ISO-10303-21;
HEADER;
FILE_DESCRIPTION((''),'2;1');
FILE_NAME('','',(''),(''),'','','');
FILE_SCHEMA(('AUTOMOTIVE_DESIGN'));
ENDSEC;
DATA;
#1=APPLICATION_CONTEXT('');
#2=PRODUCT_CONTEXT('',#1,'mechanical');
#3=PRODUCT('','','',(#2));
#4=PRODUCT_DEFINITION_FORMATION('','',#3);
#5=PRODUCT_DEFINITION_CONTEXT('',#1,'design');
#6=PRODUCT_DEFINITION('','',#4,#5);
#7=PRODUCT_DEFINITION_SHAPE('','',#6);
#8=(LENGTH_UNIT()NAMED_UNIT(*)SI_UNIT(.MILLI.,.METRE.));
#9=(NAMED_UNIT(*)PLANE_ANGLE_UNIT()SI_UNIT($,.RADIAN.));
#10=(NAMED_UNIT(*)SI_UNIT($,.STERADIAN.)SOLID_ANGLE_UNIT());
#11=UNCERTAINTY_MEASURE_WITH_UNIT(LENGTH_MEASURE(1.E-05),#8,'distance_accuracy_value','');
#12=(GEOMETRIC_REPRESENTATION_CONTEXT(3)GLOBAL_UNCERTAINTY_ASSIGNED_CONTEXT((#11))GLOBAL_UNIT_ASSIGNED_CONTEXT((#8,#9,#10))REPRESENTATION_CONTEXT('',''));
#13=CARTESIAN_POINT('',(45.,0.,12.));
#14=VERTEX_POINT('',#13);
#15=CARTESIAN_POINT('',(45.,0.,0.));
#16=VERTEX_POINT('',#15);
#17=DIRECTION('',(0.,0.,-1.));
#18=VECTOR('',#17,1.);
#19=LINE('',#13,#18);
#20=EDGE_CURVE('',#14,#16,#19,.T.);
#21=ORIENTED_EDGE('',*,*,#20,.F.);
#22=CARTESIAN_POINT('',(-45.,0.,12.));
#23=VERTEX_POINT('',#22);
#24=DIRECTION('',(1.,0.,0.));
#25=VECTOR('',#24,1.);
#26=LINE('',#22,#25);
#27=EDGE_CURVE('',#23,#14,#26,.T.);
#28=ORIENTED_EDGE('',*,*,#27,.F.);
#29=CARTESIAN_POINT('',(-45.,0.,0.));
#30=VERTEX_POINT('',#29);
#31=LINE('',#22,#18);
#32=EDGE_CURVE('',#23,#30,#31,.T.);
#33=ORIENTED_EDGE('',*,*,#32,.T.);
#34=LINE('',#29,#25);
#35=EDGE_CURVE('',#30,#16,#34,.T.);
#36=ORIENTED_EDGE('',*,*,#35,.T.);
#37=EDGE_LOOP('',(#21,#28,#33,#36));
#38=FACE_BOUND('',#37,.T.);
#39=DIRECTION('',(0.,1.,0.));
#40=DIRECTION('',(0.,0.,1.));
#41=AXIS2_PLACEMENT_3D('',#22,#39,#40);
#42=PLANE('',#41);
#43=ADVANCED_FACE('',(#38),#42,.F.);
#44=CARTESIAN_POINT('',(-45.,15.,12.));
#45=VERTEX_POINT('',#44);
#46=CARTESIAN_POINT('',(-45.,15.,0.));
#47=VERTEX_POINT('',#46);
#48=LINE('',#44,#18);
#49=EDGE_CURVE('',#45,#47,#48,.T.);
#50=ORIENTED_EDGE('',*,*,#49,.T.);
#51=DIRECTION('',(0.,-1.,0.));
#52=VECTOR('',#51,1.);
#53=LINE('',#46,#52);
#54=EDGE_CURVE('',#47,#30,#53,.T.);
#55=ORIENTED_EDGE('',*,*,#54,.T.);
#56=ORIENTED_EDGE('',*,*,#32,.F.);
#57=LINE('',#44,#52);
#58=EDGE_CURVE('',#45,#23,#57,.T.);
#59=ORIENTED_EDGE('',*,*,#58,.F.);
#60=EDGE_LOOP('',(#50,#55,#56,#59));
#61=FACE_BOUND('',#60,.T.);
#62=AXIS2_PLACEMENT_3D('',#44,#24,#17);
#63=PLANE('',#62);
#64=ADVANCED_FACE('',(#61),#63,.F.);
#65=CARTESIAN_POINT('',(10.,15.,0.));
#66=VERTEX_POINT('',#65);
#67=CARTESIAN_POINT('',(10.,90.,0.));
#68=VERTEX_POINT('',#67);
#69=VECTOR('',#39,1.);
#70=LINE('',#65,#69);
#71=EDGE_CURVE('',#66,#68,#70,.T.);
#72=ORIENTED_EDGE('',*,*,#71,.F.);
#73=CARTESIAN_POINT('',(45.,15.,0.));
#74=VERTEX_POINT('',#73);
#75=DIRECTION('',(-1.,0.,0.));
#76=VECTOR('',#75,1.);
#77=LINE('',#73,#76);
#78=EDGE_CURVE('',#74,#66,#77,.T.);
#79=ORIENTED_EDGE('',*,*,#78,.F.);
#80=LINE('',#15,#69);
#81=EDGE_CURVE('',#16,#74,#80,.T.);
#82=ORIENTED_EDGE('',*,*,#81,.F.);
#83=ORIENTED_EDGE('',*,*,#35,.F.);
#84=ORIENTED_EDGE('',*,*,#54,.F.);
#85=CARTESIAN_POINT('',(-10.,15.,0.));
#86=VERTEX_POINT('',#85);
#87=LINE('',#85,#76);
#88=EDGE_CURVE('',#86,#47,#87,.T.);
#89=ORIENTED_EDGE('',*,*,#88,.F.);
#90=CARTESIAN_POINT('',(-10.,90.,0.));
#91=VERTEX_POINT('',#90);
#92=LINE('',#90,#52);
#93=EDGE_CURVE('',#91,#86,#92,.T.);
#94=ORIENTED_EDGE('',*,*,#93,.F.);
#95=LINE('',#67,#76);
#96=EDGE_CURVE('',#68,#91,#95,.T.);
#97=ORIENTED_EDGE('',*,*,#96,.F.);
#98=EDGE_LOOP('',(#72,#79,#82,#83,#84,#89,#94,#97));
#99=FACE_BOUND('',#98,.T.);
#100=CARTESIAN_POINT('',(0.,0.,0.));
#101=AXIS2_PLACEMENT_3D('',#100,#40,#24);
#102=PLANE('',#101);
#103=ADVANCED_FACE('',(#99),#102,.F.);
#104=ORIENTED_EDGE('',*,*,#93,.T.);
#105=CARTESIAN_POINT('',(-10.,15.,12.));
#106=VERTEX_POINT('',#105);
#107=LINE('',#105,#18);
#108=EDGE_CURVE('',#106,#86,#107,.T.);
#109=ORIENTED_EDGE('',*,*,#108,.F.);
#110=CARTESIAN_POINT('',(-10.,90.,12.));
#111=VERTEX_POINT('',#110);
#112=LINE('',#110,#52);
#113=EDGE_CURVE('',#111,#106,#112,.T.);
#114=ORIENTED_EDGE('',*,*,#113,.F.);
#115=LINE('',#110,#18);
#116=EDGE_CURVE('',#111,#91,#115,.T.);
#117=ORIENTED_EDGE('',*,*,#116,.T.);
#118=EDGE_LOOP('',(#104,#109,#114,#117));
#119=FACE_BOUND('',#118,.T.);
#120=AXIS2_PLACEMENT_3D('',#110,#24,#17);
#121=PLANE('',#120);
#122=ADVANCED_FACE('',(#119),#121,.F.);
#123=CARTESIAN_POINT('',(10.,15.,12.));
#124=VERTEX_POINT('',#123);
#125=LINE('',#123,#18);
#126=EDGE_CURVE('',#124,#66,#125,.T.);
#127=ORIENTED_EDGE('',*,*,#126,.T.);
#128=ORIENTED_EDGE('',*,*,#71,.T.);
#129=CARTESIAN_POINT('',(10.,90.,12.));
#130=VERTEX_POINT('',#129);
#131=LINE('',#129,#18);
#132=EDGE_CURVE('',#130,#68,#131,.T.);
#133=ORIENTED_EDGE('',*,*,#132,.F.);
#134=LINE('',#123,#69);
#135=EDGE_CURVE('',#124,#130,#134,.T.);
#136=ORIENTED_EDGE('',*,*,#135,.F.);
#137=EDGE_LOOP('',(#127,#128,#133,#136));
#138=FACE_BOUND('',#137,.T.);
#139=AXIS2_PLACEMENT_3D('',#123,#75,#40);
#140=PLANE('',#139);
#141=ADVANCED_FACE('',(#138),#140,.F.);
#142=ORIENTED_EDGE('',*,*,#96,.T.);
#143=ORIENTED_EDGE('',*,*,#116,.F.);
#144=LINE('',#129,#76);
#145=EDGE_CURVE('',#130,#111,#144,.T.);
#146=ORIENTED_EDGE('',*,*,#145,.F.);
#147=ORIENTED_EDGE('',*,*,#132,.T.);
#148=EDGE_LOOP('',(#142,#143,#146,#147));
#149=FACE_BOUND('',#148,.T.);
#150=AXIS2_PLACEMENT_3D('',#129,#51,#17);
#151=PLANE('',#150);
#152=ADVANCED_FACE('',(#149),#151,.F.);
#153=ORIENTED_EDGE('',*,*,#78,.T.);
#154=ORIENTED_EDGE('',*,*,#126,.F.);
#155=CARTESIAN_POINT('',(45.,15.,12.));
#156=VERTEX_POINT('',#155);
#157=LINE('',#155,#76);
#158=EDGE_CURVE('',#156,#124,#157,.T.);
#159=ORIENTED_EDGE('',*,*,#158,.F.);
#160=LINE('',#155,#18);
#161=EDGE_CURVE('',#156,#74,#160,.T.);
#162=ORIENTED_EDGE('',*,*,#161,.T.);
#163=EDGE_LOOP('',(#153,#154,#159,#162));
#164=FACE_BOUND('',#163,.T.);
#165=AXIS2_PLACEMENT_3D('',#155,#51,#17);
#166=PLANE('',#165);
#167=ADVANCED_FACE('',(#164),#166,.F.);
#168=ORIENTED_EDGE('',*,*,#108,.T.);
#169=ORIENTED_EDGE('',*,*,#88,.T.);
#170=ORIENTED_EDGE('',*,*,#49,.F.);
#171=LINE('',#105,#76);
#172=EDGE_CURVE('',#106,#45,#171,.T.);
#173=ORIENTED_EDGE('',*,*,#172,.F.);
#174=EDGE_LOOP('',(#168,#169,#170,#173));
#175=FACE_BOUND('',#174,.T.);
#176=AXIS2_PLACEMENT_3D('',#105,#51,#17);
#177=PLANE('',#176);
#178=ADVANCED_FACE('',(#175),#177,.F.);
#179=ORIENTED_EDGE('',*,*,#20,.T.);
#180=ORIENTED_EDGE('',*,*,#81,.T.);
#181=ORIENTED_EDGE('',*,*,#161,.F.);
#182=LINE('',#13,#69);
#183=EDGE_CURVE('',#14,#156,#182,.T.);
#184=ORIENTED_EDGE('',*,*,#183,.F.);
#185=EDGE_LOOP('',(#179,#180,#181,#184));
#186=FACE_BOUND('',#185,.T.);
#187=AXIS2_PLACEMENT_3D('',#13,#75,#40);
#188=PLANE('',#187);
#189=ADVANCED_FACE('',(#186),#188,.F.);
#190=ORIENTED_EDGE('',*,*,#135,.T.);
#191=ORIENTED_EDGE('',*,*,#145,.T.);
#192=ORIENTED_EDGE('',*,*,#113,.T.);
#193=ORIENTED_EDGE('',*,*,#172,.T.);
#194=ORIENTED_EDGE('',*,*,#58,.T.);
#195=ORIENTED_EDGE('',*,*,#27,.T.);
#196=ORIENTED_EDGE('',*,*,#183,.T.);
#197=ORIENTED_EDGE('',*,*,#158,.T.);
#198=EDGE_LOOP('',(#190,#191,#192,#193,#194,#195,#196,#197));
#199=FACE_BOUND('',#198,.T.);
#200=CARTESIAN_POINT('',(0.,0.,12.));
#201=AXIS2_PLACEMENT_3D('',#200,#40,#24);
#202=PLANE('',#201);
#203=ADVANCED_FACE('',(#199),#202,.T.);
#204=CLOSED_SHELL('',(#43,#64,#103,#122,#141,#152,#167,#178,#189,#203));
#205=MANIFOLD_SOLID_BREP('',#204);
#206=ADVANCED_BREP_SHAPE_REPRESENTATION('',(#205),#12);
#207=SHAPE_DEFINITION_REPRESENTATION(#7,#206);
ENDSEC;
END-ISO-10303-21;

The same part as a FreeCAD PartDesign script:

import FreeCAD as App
import Part
import Sketcher
from FreeCAD import Vector


def add_polygon(sketch, points):
    """Adds a closed chain of lines whose ends are joined by coincident constraints."""
    first, n = sketch.GeometryCount, len(points)
    for a, b in zip(points, points[1:] + points[:1]):
        sketch.addGeometry(Part.LineSegment(App.Vector(*a, 0), App.Vector(*b, 0)), False)
    for i in range(n):
        sketch.addConstraint(Sketcher.Constraint("Coincident", first + i, 2, first + (i + 1) % n, 1))

doc = App.newDocument("Part")
params = doc.addObject("Spreadsheet::Sheet", "Params")
for row, (alias, value) in enumerate([
    ("sketch1_width", "90 mm"),
    ("sketch1_width2", "35 mm"),
    ("sketch1_height", "15 mm"),
    ("sketch1_height2", "75 mm"),
    ("pad1_length", "12 mm"),
], start=1):
    params.set(f"A{row}", alias)
    params.set(f"B{row}", "=" + value)
    params.setAlias(f"B{row}", alias)

body = doc.addObject("PartDesign::Body", "Body")

# Sketch on XY plane
sketch1 = doc.addObject("Sketcher::SketchObject", "Sketch")
body.addObject(sketch1)
sketch1.AttachmentSupport = (doc.XY_Plane, [""])
sketch1.MapMode = "FlatFace"
add_polygon(sketch1, [(-45, 0), (45, 0), (45, 15), (10, 15), (10, 90), (-10, 90), (-10, 15), (-45, 15)])  # lines 0-7
sketch1.addConstraint(Sketcher.Constraint("Horizontal", 0))
sketch1.addConstraint(Sketcher.Constraint("Vertical", 1))
sketch1.addConstraint(Sketcher.Constraint("Horizontal", 2))
sketch1.addConstraint(Sketcher.Constraint("Vertical", 3))
sketch1.addConstraint(Sketcher.Constraint("Horizontal", 4))
sketch1.addConstraint(Sketcher.Constraint("Vertical", 5))
sketch1.addConstraint(Sketcher.Constraint("Horizontal", 6))
sketch1.addConstraint(Sketcher.Constraint("Vertical", 7))
sketch1.addConstraint(Sketcher.Constraint("Symmetric", 0, 2, 7, 2, -1, 1))
sketch1.addConstraint(Sketcher.Constraint("Symmetric", 2, 2, 5, 2, -2))
sketch1.addConstraint(Sketcher.Constraint("DistanceX", 0, 1, 0, 2, 90.0))
sketch1.addConstraint(Sketcher.Constraint("DistanceX", 2, 2, 2, 1, 35.0))
sketch1.addConstraint(Sketcher.Constraint("DistanceY", 1, 1, 1, 2, 15.0))
sketch1.addConstraint(Sketcher.Constraint("DistanceY", 3, 1, 3, 2, 75.0))
sketch1.setExpression("Constraints[18]", "Params.sketch1_width")
sketch1.setExpression("Constraints[19]", "Params.sketch1_width2")
sketch1.setExpression("Constraints[20]", "Params.sketch1_height")
sketch1.setExpression("Constraints[21]", "Params.sketch1_height2")
pad1 = doc.addObject("PartDesign::Pad", "Pad")
body.addObject(pad1)
pad1.Profile = sketch1
pad1.setExpression("Length", "Params.pad1_length")

doc.recompute()
